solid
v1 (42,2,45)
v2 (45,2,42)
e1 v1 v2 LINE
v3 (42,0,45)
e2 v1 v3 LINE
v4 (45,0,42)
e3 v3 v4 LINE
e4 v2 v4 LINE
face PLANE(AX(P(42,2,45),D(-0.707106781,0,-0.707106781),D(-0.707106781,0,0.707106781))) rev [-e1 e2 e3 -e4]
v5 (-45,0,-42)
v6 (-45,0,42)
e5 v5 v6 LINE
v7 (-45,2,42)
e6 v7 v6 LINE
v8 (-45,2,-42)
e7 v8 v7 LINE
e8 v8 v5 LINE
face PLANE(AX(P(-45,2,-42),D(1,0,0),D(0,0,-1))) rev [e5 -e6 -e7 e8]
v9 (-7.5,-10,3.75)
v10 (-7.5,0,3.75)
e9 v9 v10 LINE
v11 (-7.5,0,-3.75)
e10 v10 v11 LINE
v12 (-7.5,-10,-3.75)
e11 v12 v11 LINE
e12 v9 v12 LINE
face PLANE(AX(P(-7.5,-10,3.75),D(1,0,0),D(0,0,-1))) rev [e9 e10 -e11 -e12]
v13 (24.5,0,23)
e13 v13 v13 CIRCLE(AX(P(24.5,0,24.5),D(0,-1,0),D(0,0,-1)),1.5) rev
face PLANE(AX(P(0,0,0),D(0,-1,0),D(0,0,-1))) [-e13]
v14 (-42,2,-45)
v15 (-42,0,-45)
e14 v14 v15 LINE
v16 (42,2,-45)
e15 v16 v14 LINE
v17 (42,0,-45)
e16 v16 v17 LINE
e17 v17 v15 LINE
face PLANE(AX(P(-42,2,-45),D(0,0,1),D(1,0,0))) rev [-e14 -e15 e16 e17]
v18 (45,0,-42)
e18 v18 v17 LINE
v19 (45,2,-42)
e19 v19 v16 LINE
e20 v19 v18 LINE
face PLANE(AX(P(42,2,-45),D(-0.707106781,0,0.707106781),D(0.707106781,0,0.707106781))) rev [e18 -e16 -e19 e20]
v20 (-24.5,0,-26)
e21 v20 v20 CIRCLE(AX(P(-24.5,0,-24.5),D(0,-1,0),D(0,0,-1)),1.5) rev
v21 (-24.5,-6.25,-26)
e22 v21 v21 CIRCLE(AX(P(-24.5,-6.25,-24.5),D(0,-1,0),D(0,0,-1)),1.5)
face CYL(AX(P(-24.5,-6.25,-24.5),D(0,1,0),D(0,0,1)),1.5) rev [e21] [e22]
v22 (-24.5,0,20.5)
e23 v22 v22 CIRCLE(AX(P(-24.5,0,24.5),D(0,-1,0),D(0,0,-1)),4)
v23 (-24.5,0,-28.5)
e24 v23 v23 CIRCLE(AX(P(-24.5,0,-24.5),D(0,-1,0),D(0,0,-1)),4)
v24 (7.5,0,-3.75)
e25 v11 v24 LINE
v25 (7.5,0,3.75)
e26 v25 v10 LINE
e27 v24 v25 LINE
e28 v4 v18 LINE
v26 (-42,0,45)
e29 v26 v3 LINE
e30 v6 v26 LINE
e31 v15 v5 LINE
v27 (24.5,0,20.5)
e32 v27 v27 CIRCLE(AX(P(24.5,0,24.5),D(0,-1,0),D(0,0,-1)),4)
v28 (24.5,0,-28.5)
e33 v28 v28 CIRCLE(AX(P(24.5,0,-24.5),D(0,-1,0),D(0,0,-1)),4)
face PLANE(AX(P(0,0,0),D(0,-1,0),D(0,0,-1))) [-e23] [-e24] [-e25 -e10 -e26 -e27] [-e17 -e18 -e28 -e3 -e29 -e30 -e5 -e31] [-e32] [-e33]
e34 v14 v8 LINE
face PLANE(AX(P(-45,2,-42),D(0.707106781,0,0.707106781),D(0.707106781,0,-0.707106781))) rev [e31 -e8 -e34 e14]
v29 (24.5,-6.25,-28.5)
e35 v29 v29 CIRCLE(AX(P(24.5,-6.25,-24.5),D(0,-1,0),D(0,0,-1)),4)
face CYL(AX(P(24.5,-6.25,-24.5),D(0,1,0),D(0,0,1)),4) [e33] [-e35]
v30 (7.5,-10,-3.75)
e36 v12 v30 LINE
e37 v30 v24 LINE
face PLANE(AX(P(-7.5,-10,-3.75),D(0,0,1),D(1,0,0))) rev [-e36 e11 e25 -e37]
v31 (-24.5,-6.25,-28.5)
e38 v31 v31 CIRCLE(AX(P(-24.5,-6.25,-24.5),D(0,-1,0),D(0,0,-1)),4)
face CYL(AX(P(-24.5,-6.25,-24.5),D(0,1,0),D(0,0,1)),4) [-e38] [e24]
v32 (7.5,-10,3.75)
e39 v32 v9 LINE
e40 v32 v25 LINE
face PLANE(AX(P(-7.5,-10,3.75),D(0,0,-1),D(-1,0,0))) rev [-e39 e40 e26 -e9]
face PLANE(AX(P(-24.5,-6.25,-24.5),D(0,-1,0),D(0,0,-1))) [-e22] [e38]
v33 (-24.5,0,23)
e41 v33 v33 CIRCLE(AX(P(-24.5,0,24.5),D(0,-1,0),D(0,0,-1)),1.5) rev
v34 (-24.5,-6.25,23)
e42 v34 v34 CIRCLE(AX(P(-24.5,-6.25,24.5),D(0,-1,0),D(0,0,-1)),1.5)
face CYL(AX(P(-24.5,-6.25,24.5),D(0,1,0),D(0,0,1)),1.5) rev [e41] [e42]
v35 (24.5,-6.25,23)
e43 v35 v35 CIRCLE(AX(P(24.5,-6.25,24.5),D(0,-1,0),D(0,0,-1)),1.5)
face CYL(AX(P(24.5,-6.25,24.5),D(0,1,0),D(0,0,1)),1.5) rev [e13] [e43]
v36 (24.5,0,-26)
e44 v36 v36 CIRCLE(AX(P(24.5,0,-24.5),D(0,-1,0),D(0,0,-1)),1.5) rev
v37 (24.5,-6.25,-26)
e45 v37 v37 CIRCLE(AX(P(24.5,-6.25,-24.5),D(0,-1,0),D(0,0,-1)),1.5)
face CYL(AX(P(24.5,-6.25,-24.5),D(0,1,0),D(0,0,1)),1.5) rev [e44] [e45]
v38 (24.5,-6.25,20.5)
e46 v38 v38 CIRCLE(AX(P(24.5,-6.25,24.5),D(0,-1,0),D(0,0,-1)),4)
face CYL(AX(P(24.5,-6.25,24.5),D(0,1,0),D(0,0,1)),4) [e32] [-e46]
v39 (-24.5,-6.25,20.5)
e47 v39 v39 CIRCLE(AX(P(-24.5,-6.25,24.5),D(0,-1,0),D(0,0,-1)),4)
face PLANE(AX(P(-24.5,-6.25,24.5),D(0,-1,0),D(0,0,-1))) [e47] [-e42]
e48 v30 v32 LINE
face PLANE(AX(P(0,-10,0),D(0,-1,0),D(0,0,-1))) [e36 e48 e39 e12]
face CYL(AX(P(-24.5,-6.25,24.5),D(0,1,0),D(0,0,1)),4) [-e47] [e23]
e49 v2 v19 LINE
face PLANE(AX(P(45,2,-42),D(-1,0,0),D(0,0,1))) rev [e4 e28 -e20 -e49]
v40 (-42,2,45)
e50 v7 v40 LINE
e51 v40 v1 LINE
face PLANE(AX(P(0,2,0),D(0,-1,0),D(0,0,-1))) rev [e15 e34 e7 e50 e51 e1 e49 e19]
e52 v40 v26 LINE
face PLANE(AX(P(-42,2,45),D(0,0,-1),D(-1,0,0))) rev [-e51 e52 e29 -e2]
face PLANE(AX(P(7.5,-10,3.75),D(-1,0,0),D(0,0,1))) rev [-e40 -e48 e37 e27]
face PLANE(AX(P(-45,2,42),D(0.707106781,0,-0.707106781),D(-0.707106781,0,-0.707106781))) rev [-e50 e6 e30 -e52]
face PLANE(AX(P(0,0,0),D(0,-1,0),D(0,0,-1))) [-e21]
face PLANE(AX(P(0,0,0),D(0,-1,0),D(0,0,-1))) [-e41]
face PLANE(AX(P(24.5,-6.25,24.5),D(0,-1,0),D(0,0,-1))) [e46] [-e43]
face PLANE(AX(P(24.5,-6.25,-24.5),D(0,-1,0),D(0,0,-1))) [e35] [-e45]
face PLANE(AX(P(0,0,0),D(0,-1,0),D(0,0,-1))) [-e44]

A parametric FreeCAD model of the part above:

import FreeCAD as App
import Part
import Sketcher

V = App.Vector
Q = App.Units.Quantity


def add_polygon(sketch, points):
    """Adds a closed chain of lines whose ends are joined by coincident constraints."""
    first, n = sketch.GeometryCount, len(points)
    for a, b in zip(points, points[1:] + points[:1]):
        sketch.addGeometry(Part.LineSegment(App.Vector(*a, 0), App.Vector(*b, 0)), False)
    for i in range(n):
        sketch.addConstraint(Sketcher.Constraint("Coincident", first + i, 2, first + (i + 1) % n, 1))

doc = App.newDocument("Part")
body = doc.addObject("PartDesign::Body", "Body")

# Sketch on XZ plane
sketch1 = body.newObject("Sketcher::SketchObject", "Sketch")
sketch1.AttachmentSupport = (doc.getObject("XZ_Plane"), [""])
sketch1.MapMode = "FlatFace"
add_polygon(sketch1, [(42, -45), (-42, -45), (-45, -42), (-45, 42), (-42, 45), (42, 45), (45, 42), (45, -42)])  # lines 0-7
sketch1.addConstraint(Sketcher.Constraint("Horizontal", 0))
sketch1.addConstraint(Sketcher.Constraint("Vertical", 2))
sketch1.addConstraint(Sketcher.Constraint("Horizontal", 4))
sketch1.addConstraint(Sketcher.Constraint("Vertical", 6))
sketch1.addConstraint(Sketcher.Constraint("Symmetric", 0, 2, 4, 2, -1, 1))
sketch1.addConstraint(Sketcher.Constraint("Symmetric", 1, 2, 5, 2, -1, 1))
sketch1.addConstraint(Sketcher.Constraint("Perpendicular", 1, 3))
sketch1.addConstraint(Sketcher.Constraint("Perpendicular", 5, 7))
sketch1.addConstraint(Sketcher.Constraint("Horizontal", 2, 2, 5, 2))
sketch1.addConstraint(Sketcher.Constraint("Horizontal", 1, 2, 6, 2))
sketch1.addConstraint(Sketcher.Constraint("Vertical", 0, 2, 3, 2))
sketch1.addConstraint(Sketcher.Constraint("Equal", 4, 2))
sketch1.addConstraint(Sketcher.Constraint("DistanceX", 0, 2, 0, 1, Q("84 mm")))
sketch1.addConstraint(Sketcher.Constraint("DistanceY", 0, 2, -1, 1, Q("45 mm")))
pad1 = body.newObject("PartDesign::Pad", "Pad")
pad1.Profile = sketch1
pad1.Length = 2
pad1.Reversed = True

# Sketch on XZ plane
sketch2 = body.newObject("Sketcher::SketchObject", "Sketch001")
sketch2.AttachmentSupport = (doc.getObject("XZ_Plane"), [""])
sketch2.MapMode = "FlatFace"
sketch2.addGeometry(Part.Circle(V(-24.5, 24.5, 0), V(0, 0, 1), 4), False)
sketch2.addGeometry(Part.Circle(V(-24.5, 24.5, 0), V(0, 0, 1), 1.5), False)
sketch2.addGeometry(Part.Circle(V(24.5, 24.5, 0), V(0, 0, 1), 4), False)
sketch2.addGeometry(Part.Circle(V(24.5, 24.5, 0), V(0, 0, 1), 1.5), False)
sketch2.addGeometry(Part.Circle(V(-24.5, -24.5, 0), V(0, 0, 1), 4), False)
sketch2.addGeometry(Part.Circle(V(-24.5, -24.5, 0), V(0, 0, 1), 1.5), False)
sketch2.addGeometry(Part.Circle(V(24.5, -24.5, 0), V(0, 0, 1), 4), False)
sketch2.addGeometry(Part.Circle(V(24.5, -24.5, 0), V(0, 0, 1), 1.5), False)
sketch2.addConstraint(Sketcher.Constraint("Coincident", 1, 3, 0, 3))
sketch2.addConstraint(Sketcher.Constraint("Coincident", 3, 3, 2, 3))
sketch2.addConstraint(Sketcher.Constraint("Coincident", 5, 3, 4, 3))
sketch2.addConstraint(Sketcher.Constraint("Coincident", 7, 3, 6, 3))
sketch2.addConstraint(Sketcher.Constraint("Equal", 0, 2))
sketch2.addConstraint(Sketcher.Constraint("Equal", 1, 3))
sketch2.addConstraint(Sketcher.Constraint("Equal", 2, 4))
sketch2.addConstraint(Sketcher.Constraint("Equal", 3, 5))
sketch2.addConstraint(Sketcher.Constraint("Equal", 4, 6))
sketch2.addConstraint(Sketcher.Constraint("Equal", 5, 7))
sketch2.addConstraint(Sketcher.Constraint("Symmetric", 2, 3, 4, 3, -1, 1))
sketch2.addConstraint(Sketcher.Constraint("Symmetric", 0, 3, 6, 3, -1, 1))
sketch2.addConstraint(Sketcher.Constraint("Symmetric", 0, 3, 2, 3, -2))
sketch2.addConstraint(Sketcher.Constraint("Diameter", 0, Q("8 mm")))
sketch2.addConstraint(Sketcher.Constraint("Diameter", 1, Q("3 mm")))
sketch2.addConstraint(Sketcher.Constraint("DistanceX", 0, 3, 2, 3, Q("49 mm")))
sketch2.addConstraint(Sketcher.Constraint("DistanceY", 4, 3, 0, 3, Q("49 mm")))
pad2 = body.newObject("PartDesign::Pad", "Pad001")
pad2.Profile = sketch2
pad2.Length = 6.25

# Sketch on XZ plane
sketch3 = body.newObject("Sketcher::SketchObject", "Sketch002")
sketch3.AttachmentSupport = (doc.getObject("XZ_Plane"), [""])
sketch3.MapMode = "FlatFace"
add_polygon(sketch3, [(-8, 4), (-8, -4), (8, -4), (8, 4)])  # lines 0-3
sketch3.addConstraint(Sketcher.Constraint("Vertical", 0))
sketch3.addConstraint(Sketcher.Constraint("Horizontal", 1))
sketch3.addConstraint(Sketcher.Constraint("Vertical", 2))
sketch3.addConstraint(Sketcher.Constraint("Horizontal", 3))
sketch3.addConstraint(Sketcher.Constraint("Symmetric", 0, 2, 2, 2, -1, 1))
sketch3.addConstraint(Sketcher.Constraint("DistanceX", 1, 1, 1, 2, Q("15 mm")))
sketch3.addConstraint(Sketcher.Constraint("DistanceY", 0, 2, 0, 1, Q("7.5 mm")))
pad3 = body.newObject("PartDesign::Pad", "Pad002")
pad3.Profile = sketch3
pad3.Length = 10

doc.recompute()
